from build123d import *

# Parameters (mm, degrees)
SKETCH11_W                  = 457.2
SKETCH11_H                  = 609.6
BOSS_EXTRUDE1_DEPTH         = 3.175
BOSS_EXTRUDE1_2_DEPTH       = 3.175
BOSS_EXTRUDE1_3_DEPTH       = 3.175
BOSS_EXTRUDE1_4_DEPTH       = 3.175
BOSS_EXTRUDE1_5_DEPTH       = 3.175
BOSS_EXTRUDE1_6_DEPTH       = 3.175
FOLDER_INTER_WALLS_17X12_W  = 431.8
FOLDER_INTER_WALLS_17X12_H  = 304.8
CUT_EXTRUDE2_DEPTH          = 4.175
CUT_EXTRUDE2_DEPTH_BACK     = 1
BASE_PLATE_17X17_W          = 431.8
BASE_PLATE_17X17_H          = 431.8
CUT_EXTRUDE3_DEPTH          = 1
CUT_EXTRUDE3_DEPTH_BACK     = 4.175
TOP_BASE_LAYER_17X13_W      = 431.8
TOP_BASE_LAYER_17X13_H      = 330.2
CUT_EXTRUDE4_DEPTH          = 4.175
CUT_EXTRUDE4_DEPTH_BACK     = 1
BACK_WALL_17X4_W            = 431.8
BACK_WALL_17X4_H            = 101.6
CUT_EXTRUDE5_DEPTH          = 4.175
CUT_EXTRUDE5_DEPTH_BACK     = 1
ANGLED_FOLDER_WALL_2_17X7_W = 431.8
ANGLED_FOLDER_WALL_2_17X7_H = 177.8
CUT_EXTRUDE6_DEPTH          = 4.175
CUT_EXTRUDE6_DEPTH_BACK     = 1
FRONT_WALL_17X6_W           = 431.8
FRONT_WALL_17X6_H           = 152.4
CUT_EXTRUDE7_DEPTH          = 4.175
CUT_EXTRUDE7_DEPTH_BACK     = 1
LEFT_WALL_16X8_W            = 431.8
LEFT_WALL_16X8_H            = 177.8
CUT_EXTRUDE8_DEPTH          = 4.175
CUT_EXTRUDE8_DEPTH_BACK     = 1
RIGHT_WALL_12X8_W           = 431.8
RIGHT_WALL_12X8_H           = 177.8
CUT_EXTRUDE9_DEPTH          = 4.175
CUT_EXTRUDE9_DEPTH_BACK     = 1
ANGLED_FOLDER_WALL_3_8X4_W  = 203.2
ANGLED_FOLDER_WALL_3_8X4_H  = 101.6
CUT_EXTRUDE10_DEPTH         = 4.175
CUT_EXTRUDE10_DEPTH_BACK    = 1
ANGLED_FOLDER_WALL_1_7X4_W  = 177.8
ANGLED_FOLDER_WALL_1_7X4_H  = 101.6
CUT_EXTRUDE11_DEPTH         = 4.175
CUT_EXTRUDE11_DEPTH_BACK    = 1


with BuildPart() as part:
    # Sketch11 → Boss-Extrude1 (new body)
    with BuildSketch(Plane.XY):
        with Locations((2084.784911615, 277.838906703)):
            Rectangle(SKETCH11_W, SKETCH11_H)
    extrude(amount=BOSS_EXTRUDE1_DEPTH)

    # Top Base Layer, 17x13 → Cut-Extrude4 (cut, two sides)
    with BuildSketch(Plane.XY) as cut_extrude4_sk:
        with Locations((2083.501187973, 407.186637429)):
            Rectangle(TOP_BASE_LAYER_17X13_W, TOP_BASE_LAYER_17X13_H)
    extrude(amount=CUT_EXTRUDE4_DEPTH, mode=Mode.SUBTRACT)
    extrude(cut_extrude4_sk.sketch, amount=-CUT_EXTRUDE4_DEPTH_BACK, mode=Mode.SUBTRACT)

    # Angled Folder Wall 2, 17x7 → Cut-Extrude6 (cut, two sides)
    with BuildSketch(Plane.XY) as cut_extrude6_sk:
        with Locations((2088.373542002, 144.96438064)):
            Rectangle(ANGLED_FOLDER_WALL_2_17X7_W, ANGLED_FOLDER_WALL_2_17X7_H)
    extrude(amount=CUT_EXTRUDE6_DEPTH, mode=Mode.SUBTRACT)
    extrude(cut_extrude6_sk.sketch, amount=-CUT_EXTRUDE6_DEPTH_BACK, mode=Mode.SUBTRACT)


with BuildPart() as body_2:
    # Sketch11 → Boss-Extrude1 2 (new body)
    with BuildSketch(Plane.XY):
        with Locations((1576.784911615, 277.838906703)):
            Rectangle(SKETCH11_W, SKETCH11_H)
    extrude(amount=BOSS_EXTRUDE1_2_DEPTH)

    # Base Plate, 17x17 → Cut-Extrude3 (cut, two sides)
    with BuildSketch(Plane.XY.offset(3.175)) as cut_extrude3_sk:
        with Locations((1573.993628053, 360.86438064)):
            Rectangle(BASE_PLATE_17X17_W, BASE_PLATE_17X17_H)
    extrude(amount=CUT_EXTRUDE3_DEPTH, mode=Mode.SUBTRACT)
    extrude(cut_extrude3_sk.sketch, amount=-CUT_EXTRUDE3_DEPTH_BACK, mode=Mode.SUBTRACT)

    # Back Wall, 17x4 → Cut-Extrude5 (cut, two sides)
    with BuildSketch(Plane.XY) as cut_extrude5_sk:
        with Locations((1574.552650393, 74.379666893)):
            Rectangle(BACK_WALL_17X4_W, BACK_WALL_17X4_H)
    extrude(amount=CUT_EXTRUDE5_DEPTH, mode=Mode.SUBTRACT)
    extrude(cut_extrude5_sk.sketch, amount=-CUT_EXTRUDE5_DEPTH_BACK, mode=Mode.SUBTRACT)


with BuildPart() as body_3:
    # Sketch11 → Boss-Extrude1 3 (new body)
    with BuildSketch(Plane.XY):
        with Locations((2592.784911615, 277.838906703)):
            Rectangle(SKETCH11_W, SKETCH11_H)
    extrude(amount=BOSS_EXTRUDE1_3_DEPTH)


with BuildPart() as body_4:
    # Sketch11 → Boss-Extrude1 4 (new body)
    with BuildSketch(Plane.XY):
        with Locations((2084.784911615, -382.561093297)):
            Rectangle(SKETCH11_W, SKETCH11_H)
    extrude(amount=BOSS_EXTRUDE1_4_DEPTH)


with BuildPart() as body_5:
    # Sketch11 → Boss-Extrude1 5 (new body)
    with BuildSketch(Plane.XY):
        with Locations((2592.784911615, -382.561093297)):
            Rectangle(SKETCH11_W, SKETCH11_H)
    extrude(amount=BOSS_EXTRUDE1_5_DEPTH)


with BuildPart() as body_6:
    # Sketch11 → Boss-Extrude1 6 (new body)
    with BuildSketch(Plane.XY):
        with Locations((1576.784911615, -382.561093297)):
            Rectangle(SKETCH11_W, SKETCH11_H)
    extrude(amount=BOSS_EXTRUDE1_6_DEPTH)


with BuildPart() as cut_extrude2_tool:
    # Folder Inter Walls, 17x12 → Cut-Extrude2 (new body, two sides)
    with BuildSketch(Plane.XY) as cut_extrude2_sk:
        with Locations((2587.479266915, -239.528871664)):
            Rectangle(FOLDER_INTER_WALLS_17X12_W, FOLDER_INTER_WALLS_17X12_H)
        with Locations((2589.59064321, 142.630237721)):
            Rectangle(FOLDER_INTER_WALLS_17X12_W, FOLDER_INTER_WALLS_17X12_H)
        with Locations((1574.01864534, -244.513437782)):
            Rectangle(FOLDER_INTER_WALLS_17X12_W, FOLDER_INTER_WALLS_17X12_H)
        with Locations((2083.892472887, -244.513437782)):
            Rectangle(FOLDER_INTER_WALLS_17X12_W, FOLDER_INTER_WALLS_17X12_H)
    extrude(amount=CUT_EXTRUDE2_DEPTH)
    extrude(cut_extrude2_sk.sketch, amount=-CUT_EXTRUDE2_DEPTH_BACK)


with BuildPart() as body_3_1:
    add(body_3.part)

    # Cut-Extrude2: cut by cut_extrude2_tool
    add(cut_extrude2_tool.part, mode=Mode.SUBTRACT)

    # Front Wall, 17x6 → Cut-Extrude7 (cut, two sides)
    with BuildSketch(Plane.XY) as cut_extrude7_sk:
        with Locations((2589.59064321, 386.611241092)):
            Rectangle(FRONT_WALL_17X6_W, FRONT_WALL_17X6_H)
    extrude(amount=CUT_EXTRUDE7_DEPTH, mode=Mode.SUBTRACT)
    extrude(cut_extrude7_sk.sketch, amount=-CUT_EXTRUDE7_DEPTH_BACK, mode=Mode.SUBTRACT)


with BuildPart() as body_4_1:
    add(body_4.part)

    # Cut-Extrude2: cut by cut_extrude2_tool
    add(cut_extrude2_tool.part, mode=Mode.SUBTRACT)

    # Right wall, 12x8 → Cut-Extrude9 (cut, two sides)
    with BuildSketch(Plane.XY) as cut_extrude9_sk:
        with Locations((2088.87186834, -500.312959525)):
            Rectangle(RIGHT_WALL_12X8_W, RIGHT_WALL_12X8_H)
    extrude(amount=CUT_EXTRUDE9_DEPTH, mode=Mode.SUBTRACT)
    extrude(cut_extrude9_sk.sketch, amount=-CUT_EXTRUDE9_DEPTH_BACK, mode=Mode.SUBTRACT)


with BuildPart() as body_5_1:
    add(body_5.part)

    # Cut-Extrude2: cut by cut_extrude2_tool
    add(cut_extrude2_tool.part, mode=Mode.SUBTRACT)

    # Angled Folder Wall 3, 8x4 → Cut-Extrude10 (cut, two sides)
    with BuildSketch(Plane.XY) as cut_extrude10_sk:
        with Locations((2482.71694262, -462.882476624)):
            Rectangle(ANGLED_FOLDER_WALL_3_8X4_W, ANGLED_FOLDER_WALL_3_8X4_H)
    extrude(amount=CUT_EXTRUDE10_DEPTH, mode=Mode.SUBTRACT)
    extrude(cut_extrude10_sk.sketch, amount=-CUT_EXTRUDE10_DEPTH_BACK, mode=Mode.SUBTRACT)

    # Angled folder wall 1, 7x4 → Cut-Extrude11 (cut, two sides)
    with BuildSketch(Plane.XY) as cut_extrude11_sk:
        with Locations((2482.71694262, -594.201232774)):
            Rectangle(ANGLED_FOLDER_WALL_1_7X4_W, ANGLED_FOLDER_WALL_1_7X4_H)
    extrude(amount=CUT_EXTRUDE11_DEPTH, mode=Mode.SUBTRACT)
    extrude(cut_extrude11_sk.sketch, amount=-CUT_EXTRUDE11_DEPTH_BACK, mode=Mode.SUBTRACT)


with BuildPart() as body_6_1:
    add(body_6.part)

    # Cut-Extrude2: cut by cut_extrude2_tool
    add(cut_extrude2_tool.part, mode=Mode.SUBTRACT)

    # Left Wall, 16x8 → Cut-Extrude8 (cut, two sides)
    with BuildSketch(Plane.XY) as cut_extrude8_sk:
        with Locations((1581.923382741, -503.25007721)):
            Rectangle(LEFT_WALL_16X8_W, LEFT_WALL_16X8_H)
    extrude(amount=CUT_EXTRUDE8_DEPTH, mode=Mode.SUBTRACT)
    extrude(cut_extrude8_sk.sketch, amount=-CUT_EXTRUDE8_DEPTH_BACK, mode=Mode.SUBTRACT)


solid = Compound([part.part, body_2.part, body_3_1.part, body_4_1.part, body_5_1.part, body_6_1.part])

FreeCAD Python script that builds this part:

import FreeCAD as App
import Part
import Sketcher
from FreeCAD import Vector
Q = App.Units.Quantity


def add_polygon(sketch, points):
    """Adds a closed chain of lines whose ends are joined by coincident constraints."""
    first, n = sketch.GeometryCount, len(points)
    for a, b in zip(points, points[1:] + points[:1]):
        sketch.addGeometry(Part.LineSegment(App.Vector(*a, 0), App.Vector(*b, 0)), False)
    for i in range(n):
        sketch.addConstraint(Sketcher.Constraint("Coincident", first + i, 2, first + (i + 1) % n, 1))

doc = App.newDocument("Part")
body = doc.addObject("PartDesign::Body", "Body")

sketch1 = body.newObject("Sketcher::SketchObject", "Sketch")
sketch1.AttachmentSupport = (doc.getObject("XY_Plane"), [""])
sketch1.MapMode = "FlatFace"
add_polygon(sketch1, [(1856, 583), (1856, -27), (2313, -27), (2313, 583)])
sketch1.addConstraint(Sketcher.Constraint("Vertical", 0))
sketch1.addConstraint(Sketcher.Constraint("Horizontal", 1))
sketch1.addConstraint(Sketcher.Constraint("Vertical", 2))
sketch1.addConstraint(Sketcher.Constraint("Horizontal", 3))
sketch1.addConstraint(Sketcher.Constraint("DistanceX", 1, 1, 1, 2, Q("18 in")))
sketch1.addConstraint(Sketcher.Constraint("DistanceY", 0, 2, 0, 1, Q("24 in")))
sketch1.addConstraint(Sketcher.Constraint("DistanceX", -1, 1, 0, 2, 1856.184912))
sketch1.addConstraint(Sketcher.Constraint("DistanceY", 0, 2, -1, 1, 26.961093))
pad1 = body.newObject("PartDesign::Pad", "Pad")
pad1.Profile = sketch1
pad1.Length = Q("0.125 in")

sketch2 = body.newObject("Sketcher::SketchObject", "Sketch001")
sketch2.AttachmentSupport = (doc.getObject("XY_Plane"), [""])
sketch2.MapMode = "FlatFace"
add_polygon(sketch2, [(1868, 572), (1868, 242), (2299, 242), (2299, 572)])
sketch2.addConstraint(Sketcher.Constraint("Vertical", 0))
sketch2.addConstraint(Sketcher.Constraint("Horizontal", 1))
sketch2.addConstraint(Sketcher.Constraint("Vertical", 2))
sketch2.addConstraint(Sketcher.Constraint("Horizontal", 3))
sketch2.addConstraint(Sketcher.Constraint("DistanceX", 1, 1, 1, 2, Q("17 in")))
sketch2.addConstraint(Sketcher.Constraint("DistanceY", 0, 2, 0, 1, Q("13 in")))
sketch2.addConstraint(Sketcher.Constraint("DistanceX", -1, 1, 0, 2, 1867.601188))
sketch2.addConstraint(Sketcher.Constraint("DistanceY", -1, 1, 0, 2, 242.086637))
pocket1 = body.newObject("PartDesign::Pocket", "Pocket")
pocket1.Profile = sketch2
pocket1.Type = "ThroughAll"
pocket1.Midplane = True

sketch3 = body.newObject("Sketcher::SketchObject", "Sketch002")
sketch3.AttachmentSupport = (doc.getObject("XY_Plane"), [""])
sketch3.MapMode = "FlatFace"
add_polygon(sketch3, [(1872, 234), (1872, 56), (2304, 56), (2304, 234)])
sketch3.addConstraint(Sketcher.Constraint("Vertical", 0))
sketch3.addConstraint(Sketcher.Constraint("Horizontal", 1))
sketch3.addConstraint(Sketcher.Constraint("Vertical", 2))
sketch3.addConstraint(Sketcher.Constraint("Horizontal", 3))
sketch3.addConstraint(Sketcher.Constraint("DistanceX", 1, 1, 1, 2, Q("17 in")))
sketch3.addConstraint(Sketcher.Constraint("DistanceY", 0, 2, 0, 1, Q("7 in")))
sketch3.addConstraint(Sketcher.Constraint("DistanceY", -1, 1, 0, 2, 56.064381))
sketch3.addConstraint(Sketcher.Constraint("DistanceX", -1, 1, 0, 2, 1872.473542))
pocket2 = body.newObject("PartDesign::Pocket", "Pocket001")
pocket2.Profile = sketch3
pocket2.Type = "ThroughAll"
pocket2.Midplane = True
body2 = doc.addObject("PartDesign::Body", "Body001")

sketch4 = body2.newObject("Sketcher::SketchObject", "Sketch003")
sketch4.AttachmentSupport = (doc.getObject("XY_Plane001"), [""])
sketch4.MapMode = "FlatFace"
add_polygon(sketch4, [(1348, 583), (1348, -27), (1805, -27), (1805, 583)])
sketch4.addConstraint(Sketcher.Constraint("Vertical", 0))
sketch4.addConstraint(Sketcher.Constraint("Horizontal", 1))
sketch4.addConstraint(Sketcher.Constraint("Vertical", 2))
sketch4.addConstraint(Sketcher.Constraint("Horizontal", 3))
sketch4.addConstraint(Sketcher.Constraint("DistanceX", 1, 1, 1, 2, Q("18 in")))
sketch4.addConstraint(Sketcher.Constraint("DistanceY", 0, 2, 0, 1, Q("24 in")))
sketch4.addConstraint(Sketcher.Constraint("DistanceX", -1, 1, 0, 2, 1348.184912))
sketch4.addConstraint(Sketcher.Constraint("DistanceY", 0, 2, -1, 1, 26.961093))
pad2 = body2.newObject("PartDesign::Pad", "Pad001")
pad2.Profile = sketch4
pad2.Length = Q("0.125 in")

sketch5 = body2.newObject("Sketcher::SketchObject", "Sketch004")
sketch5.AttachmentSupport = (doc.getObject("XY_Plane001"), [""])
sketch5.MapMode = "FlatFace"
sketch5.AttachmentOffset = App.Placement(Vector(0, 0, 0.125 * 25.4), App.Rotation())
add_polygon(sketch5, [(1358, 577), (1358, 145), (1790, 145), (1790, 577)])
sketch5.addConstraint(Sketcher.Constraint("Vertical", 0))
sketch5.addConstraint(Sketcher.Constraint("Horizontal", 1))
sketch5.addConstraint(Sketcher.Constraint("Vertical", 2))
sketch5.addConstraint(Sketcher.Constraint("Horizontal", 3))
sketch5.addConstraint(Sketcher.Constraint("Equal", 3, 0))
sketch5.addConstraint(Sketcher.Constraint("DistanceX", 1, 1, 1, 2, Q("17 in")))
sketch5.addConstraint(Sketcher.Constraint("DistanceX", -1, 1, 0, 2, 1358.093628))
sketch5.addConstraint(Sketcher.Constraint("DistanceY", -1, 1, 0, 2, 144.964381))
pocket3 = body2.newObject("PartDesign::Pocket", "Pocket002")
pocket3.Profile = sketch5
pocket3.Type = "ThroughAll"
pocket3.Midplane = True

sketch6 = body2.newObject("Sketcher::SketchObject", "Sketch005")
sketch6.AttachmentSupport = (doc.getObject("XY_Plane001"), [""])
sketch6.MapMode = "FlatFace"
add_polygon(sketch6, [(1359, 125), (1359, 24), (1790, 24), (1790, 125)])
sketch6.addConstraint(Sketcher.Constraint("Vertical", 0))
sketch6.addConstraint(Sketcher.Constraint("Horizontal", 1))
sketch6.addConstraint(Sketcher.Constraint("Vertical", 2))
sketch6.addConstraint(Sketcher.Constraint("Horizontal", 3))
sketch6.addConstraint(Sketcher.Constraint("DistanceX", 1, 1, 1, 2, Q("17 in")))
sketch6.addConstraint(Sketcher.Constraint("DistanceY", 0, 2, 0, 1, Q("4 in")))
sketch6.addConstraint(Sketcher.Constraint("DistanceX", -1, 1, 0, 2, 1358.65265))
sketch6.addConstraint(Sketcher.Constraint("DistanceY", -1, 1, 0, 2, 23.579667))
pocket4 = body2.newObject("PartDesign::Pocket", "Pocket003")
pocket4.Profile = sketch6
pocket4.Type = "ThroughAll"
pocket4.Midplane = True
body3 = doc.addObject("PartDesign::Body", "Body002")

sketch7 = body3.newObject("Sketcher::SketchObject", "Sketch006")
sketch7.AttachmentSupport = (doc.getObject("XY_Plane002"), [""])
sketch7.MapMode = "FlatFace"
add_polygon(sketch7, [(2364, 583), (2364, -27), (2821, -27), (2821, 583)])
sketch7.addConstraint(Sketcher.Constraint("Vertical", 0))
sketch7.addConstraint(Sketcher.Constraint("Horizontal", 1))
sketch7.addConstraint(Sketcher.Constraint("Vertical", 2))
sketch7.addConstraint(Sketcher.Constraint("Horizontal", 3))
sketch7.addConstraint(Sketcher.Constraint("DistanceX", 1, 1, 1, 2, Q("18 in")))
sketch7.addConstraint(Sketcher.Constraint("DistanceY", 0, 2, 0, 1, Q("24 in")))
sketch7.addConstraint(Sketcher.Constraint("DistanceX", -1, 1, 0, 2, 2364.184912))
sketch7.addConstraint(Sketcher.Constraint("DistanceY", 0, 2, -1, 1, 26.961093))
pad3 = body3.newObject("PartDesign::Pad", "Pad002")
pad3.Profile = sketch7
pad3.Length = Q("0.125 in")
body4 = doc.addObject("PartDesign::Body", "Body003")

sketch8 = body4.newObject("Sketcher::SketchObject", "Sketch007")
sketch8.AttachmentSupport = (doc.getObject("XY_Plane003"), [""])
sketch8.MapMode = "FlatFace"
add_polygon(sketch8, [(1856, -78), (1856, -687), (2313, -687), (2313, -78)])
sketch8.addConstraint(Sketcher.Constraint("Vertical", 0))
sketch8.addConstraint(Sketcher.Constraint("Horizontal", 1))
sketch8.addConstraint(Sketcher.Constraint("Vertical", 2))
sketch8.addConstraint(Sketcher.Constraint("Horizontal", 3))
sketch8.addConstraint(Sketcher.Constraint("DistanceX", 1, 1, 1, 2, Q("18 in")))
sketch8.addConstraint(Sketcher.Constraint("DistanceY", 0, 2, 0, 1, Q("24 in")))
sketch8.addConstraint(Sketcher.Constraint("DistanceX", -1, 1, 0, 2, 1856.184912))
sketch8.addConstraint(Sketcher.Constraint("DistanceY", 0, 2, -1, 1, 687.361093))
pad4 = body4.newObject("PartDesign::Pad", "Pad003")
pad4.Profile = sketch8
pad4.Length = Q("0.125 in")
body5 = doc.addObject("PartDesign::Body", "Body004")

sketch9 = body5.newObject("Sketcher::SketchObject", "Sketch008")
sketch9.AttachmentSupport = (doc.getObject("XY_Plane004"), [""])
sketch9.MapMode = "FlatFace"
add_polygon(sketch9, [(2364, -78), (2364, -687), (2821, -687), (2821, -78)])
sketch9.addConstraint(Sketcher.Constraint("Vertical", 0))
sketch9.addConstraint(Sketcher.Constraint("Horizontal", 1))
sketch9.addConstraint(Sketcher.Constraint("Vertical", 2))
sketch9.addConstraint(Sketcher.Constraint("Horizontal", 3))
sketch9.addConstraint(Sketcher.Constraint("DistanceX", 1, 1, 1, 2, Q("18 in")))
sketch9.addConstraint(Sketcher.Constraint("DistanceY", 0, 2, 0, 1, Q("24 in")))
sketch9.addConstraint(Sketcher.Constraint("DistanceX", -1, 1, 0, 2, 2364.184912))
sketch9.addConstraint(Sketcher.Constraint("DistanceY", 0, 2, -1, 1, 687.361093))
pad5 = body5.newObject("PartDesign::Pad", "Pad004")
pad5.Profile = sketch9
pad5.Length = Q("0.125 in")
body6 = doc.addObject("PartDesign::Body", "Body005")

sketch10 = body6.newObject("Sketcher::SketchObject", "Sketch009")
sketch10.AttachmentSupport = (doc.getObject("XY_Plane005"), [""])
sketch10.MapMode = "FlatFace"
add_polygon(sketch10, [(1348, -78), (1348, -687), (1805, -687), (1805, -78)])
sketch10.addConstraint(Sketcher.Constraint("Vertical", 0))
sketch10.addConstraint(Sketcher.Constraint("Horizontal", 1))
sketch10.addConstraint(Sketcher.Constraint("Vertical", 2))
sketch10.addConstraint(Sketcher.Constraint("Horizontal", 3))
sketch10.addConstraint(Sketcher.Constraint("DistanceX", 1, 1, 1, 2, Q("18 in")))
sketch10.addConstraint(Sketcher.Constraint("DistanceY", 0, 2, 0, 1, Q("24 in")))
sketch10.addConstraint(Sketcher.Constraint("DistanceX", -1, 1, 0, 2, 1348.184912))
sketch10.addConstraint(Sketcher.Constraint("DistanceY", 0, 2, -1, 1, 687.361093))
pad6 = body6.newObject("PartDesign::Pad", "Pad005")
pad6.Profile = sketch10
pad6.Length = Q("0.125 in")
body7 = doc.addObject("PartDesign::Body", "Body006")
body7.AllowCompound = True

sketch11 = body7.newObject("Sketcher::SketchObject", "Sketch010")
sketch11.AttachmentSupport = (doc.getObject("XY_Plane006"), [""])
sketch11.MapMode = "FlatFace"
add_polygon(sketch11, [(2372, -87), (2372, -392), (2803, -392), (2803, -87)])
add_polygon(sketch11, [(2374, 295), (2374, -10), (2805, -10), (2805, 295)])
add_polygon(sketch11, [(1358, -92), (1358, -397), (1790, -397), (1790, -92)])
add_polygon(sketch11, [(1868, -92), (1868, -397), (2300, -397), (2300, -92)])
sketch11.addConstraint(Sketcher.Constraint("Vertical", 0))
sketch11.addConstraint(Sketcher.Constraint("Horizontal", 1))
sketch11.addConstraint(Sketcher.Constraint("Vertical", 2))
sketch11.addConstraint(Sketcher.Constraint("Horizontal", 3))
sketch11.addConstraint(Sketcher.Constraint("Vertical", 4))
sketch11.addConstraint(Sketcher.Constraint("Horizontal", 5))
sketch11.addConstraint(Sketcher.Constraint("Vertical", 6))
sketch11.addConstraint(Sketcher.Constraint("Horizontal", 7))
sketch11.addConstraint(Sketcher.Constraint("Vertical", 8))
sketch11.addConstraint(Sketcher.Constraint("Horizontal", 9))
sketch11.addConstraint(Sketcher.Constraint("Vertical", 10))
sketch11.addConstraint(Sketcher.Constraint("Horizontal", 11))
sketch11.addConstraint(Sketcher.Constraint("Vertical", 12))
sketch11.addConstraint(Sketcher.Constraint("Horizontal", 13))
sketch11.addConstraint(Sketcher.Constraint("Vertical", 14))
sketch11.addConstraint(Sketcher.Constraint("Horizontal", 15))
sketch11.addConstraint(Sketcher.Constraint("Horizontal", 9, 2, 12, 2))
sketch11.addConstraint(Sketcher.Constraint("Horizontal", 11, 2, 14, 2))
sketch11.addConstraint(Sketcher.Constraint("Equal", 3, 5))
sketch11.addConstraint(Sketcher.Constraint("Equal", 7, 9))
sketch11.addConstraint(Sketcher.Constraint("Equal", 11, 13))
sketch11.addConstraint(Sketcher.Constraint("Equal", 2, 4))
sketch11.addConstraint(Sketcher.Constraint("Equal", 6, 8))
sketch11.addConstraint(Sketcher.Constraint("DistanceX", 1, 1, 1, 2, Q("17 in")))
sketch11.addConstraint(Sketcher.Constraint("DistanceY", 0, 2, 0, 1, Q("12 in")))
sketch11.addConstraint(Sketcher.Constraint("DistanceY", 0, 2, -1, 1, 391.928872))
sketch11.addConstraint(Sketcher.Constraint("DistanceY", 3, 2, 4, 2, 77.359109))
sketch11.addConstraint(Sketcher.Constraint("DistanceX", 8, 2, 0, 2, 1013.460622))
sketch11.addConstraint(Sketcher.Constraint("DistanceX", 13, 2, 4, 2, 73.89817))
sketch11.addConstraint(Sketcher.Constraint("DistanceX", -1, 1, 0, 2, 2371.579267))
sketch11.addConstraint(Sketcher.Constraint("DistanceX", -1, 1, 4, 2, 2373.690643))
sketch11.addConstraint(Sketcher.Constraint("DistanceY", 8, 2, -1, 1, 396.913438))
pad7 = body7.newObject("PartDesign::Pad", "Pad006")
pad7.Profile = sketch11
pad7.Type = "TwoLengths"
pad7.Length = 4.175
pad7.Length2 = 1
doc.recompute()

body8 = doc.addObject("PartDesign::Body", "Body007")
body8.BaseFeature = body7
boolean = body3.newObject("PartDesign::Boolean", "Boolean")
boolean.Type = "Cut"
boolean.addObjects([body8])
doc.recompute()

sketch12 = body3.newObject("Sketcher::SketchObject", "Sketch011")
sketch12.AttachmentSupport = (doc.getObject("XY_Plane002"), [""])
sketch12.MapMode = "FlatFace"
add_polygon(sketch12, [(2374, 463), (2374, 310), (2805, 310), (2805, 463)])
sketch12.addConstraint(Sketcher.Constraint("Vertical", 0))
sketch12.addConstraint(Sketcher.Constraint("Horizontal", 1))
sketch12.addConstraint(Sketcher.Constraint("Vertical", 2))
sketch12.addConstraint(Sketcher.Constraint("Horizontal", 3))
sketch12.addConstraint(Sketcher.Constraint("DistanceX", 1, 1, 1, 2, Q("17 in")))
sketch12.addConstraint(Sketcher.Constraint("DistanceY", 0, 2, 0, 1, Q("6 in")))
sketch12.addConstraint(Sketcher.Constraint("DistanceY", -1, 1, 0, 2, 310.411241))
sketch12.addConstraint(Sketcher.Constraint("DistanceX", -1, 1, 0, 2, 2373.690643))
pocket5 = body3.newObject("PartDesign::Pocket", "Pocket004")
pocket5.Profile = sketch12
pocket5.Type = "ThroughAll"
pocket5.Midplane = True
doc.recompute()

body9 = doc.addObject("PartDesign::Body", "Body008")
body9.BaseFeature = body7
boolean2 = body4.newObject("PartDesign::Boolean", "Boolean001")
boolean2.Type = "Cut"
boolean2.addObjects([body9])
doc.recompute()

sketch13 = body4.newObject("Sketcher::SketchObject", "Sketch012")
sketch13.AttachmentSupport = (doc.getObject("XY_Plane003"), [""])
sketch13.MapMode = "FlatFace"
add_polygon(sketch13, [(1873, -411), (1873, -589), (2305, -589), (2305, -411)])
sketch13.addConstraint(Sketcher.Constraint("Vertical", 0))
sketch13.addConstraint(Sketcher.Constraint("Horizontal", 1))
sketch13.addConstraint(Sketcher.Constraint("Vertical", 2))
sketch13.addConstraint(Sketcher.Constraint("Horizontal", 3))
sketch13.addConstraint(Sketcher.Constraint("DistanceX", 1, 1, 1, 2, Q("17 in")))
sketch13.addConstraint(Sketcher.Constraint("DistanceY", 0, 2, 0, 1, Q("7 in")))
sketch13.addConstraint(Sketcher.Constraint("DistanceX", -1, 1, 0, 2, 1872.971868))
sketch13.addConstraint(Sketcher.Constraint("DistanceY", 0, 2, -1, 1, 589.21296))
pocket6 = body4.newObject("PartDesign::Pocket", "Pocket005")
pocket6.Profile = sketch13
pocket6.Type = "ThroughAll"
pocket6.Midplane = True
doc.recompute()

body10 = doc.addObject("PartDesign::Body", "Body009")
body10.BaseFeature = body7
boolean3 = body5.newObject("PartDesign::Boolean", "Boolean002")
boolean3.Type = "Cut"
boolean3.addObjects([body10])
doc.recompute()

sketch14 = body5.newObject("Sketcher::SketchObject", "Sketch013")
sketch14.AttachmentSupport = (doc.getObject("XY_Plane004"), [""])
sketch14.MapMode = "FlatFace"
add_polygon(sketch14, [(2381, -412), (2381, -514), (2584, -514), (2584, -412)])
sketch14.addConstraint(Sketcher.Constraint("Vertical", 0))
sketch14.addConstraint(Sketcher.Constraint("Horizontal", 1))
sketch14.addConstraint(Sketcher.Constraint("Vertical", 2))
sketch14.addConstraint(Sketcher.Constraint("Horizontal", 3))
sketch14.addConstraint(Sketcher.Constraint("DistanceX", 1, 1, 1, 2, Q("8 in")))
sketch14.addConstraint(Sketcher.Constraint("DistanceY", 0, 2, 0, 1, Q("4 in")))
sketch14.addConstraint(Sketcher.Constraint("DistanceX", -1, 1, 0, 2, 2381.116943))
sketch14.addConstraint(Sketcher.Constraint("DistanceY", 0, 2, -1, 1, 513.682477))
pocket7 = body5.newObject("PartDesign::Pocket", "Pocket006")
pocket7.Profile = sketch14
pocket7.Type = "ThroughAll"
pocket7.Midplane = True

sketch15 = body5.newObject("Sketcher::SketchObject", "Sketch014")
sketch15.AttachmentSupport = (doc.getObject("XY_Plane004"), [""])
sketch15.MapMode = "FlatFace"
add_polygon(sketch15, [(2394, -543), (2394, -645), (2572, -645), (2572, -543)])
sketch15.addConstraint(Sketcher.Constraint("Vertical", 0))
sketch15.addConstraint(Sketcher.Constraint("Horizontal", 1))
sketch15.addConstraint(Sketcher.Constraint("Vertical", 2))
sketch15.addConstraint(Sketcher.Constraint("Horizontal", 3))
sketch15.addConstraint(Sketcher.Constraint("DistanceX", 1, 1, 1, 2, Q("7 in")))
sketch15.addConstraint(Sketcher.Constraint("DistanceY", 0, 2, 0, 1, Q("4 in")))
sketch15.addConstraint(Sketcher.Constraint("DistanceX", -1, 1, 0, 2, 2393.816943))
sketch15.addConstraint(Sketcher.Constraint("DistanceY", 0, 2, -1, 1, 645.001233))
pocket8 = body5.newObject("PartDesign::Pocket", "Pocket007")
pocket8.Profile = sketch15
pocket8.Type = "ThroughAll"
pocket8.Midplane = True
doc.recompute()

boolean4 = body6.newObject("PartDesign::Boolean", "Boolean003")
boolean4.Type = "Cut"
boolean4.addObjects([body7])

sketch16 = body6.newObject("Sketcher::SketchObject", "Sketch015")
sketch16.AttachmentSupport = (doc.getObject("XY_Plane005"), [""])
sketch16.MapMode = "FlatFace"
add_polygon(sketch16, [(1366, -414), (1366, -592), (1798, -592), (1798, -414)])
sketch16.addConstraint(Sketcher.Constraint("Vertical", 0))
sketch16.addConstraint(Sketcher.Constraint("Horizontal", 1))
sketch16.addConstraint(Sketcher.Constraint("Vertical", 2))
sketch16.addConstraint(Sketcher.Constraint("Horizontal", 3))
sketch16.addConstraint(Sketcher.Constraint("DistanceX", 1, 1, 1, 2, Q("17 in")))
sketch16.addConstraint(Sketcher.Constraint("DistanceY", 0, 2, 0, 1, Q("7 in")))
sketch16.addConstraint(Sketcher.Constraint("DistanceX", -1, 1, 0, 2, 1366.023383))
sketch16.addConstraint(Sketcher.Constraint("DistanceY", 0, 2, -1, 1, 592.150077))
pocket9 = body6.newObject("PartDesign::Pocket", "Pocket008")
pocket9.Profile = sketch16
pocket9.Type = "ThroughAll"
pocket9.Midplane = True

doc.recompute()
